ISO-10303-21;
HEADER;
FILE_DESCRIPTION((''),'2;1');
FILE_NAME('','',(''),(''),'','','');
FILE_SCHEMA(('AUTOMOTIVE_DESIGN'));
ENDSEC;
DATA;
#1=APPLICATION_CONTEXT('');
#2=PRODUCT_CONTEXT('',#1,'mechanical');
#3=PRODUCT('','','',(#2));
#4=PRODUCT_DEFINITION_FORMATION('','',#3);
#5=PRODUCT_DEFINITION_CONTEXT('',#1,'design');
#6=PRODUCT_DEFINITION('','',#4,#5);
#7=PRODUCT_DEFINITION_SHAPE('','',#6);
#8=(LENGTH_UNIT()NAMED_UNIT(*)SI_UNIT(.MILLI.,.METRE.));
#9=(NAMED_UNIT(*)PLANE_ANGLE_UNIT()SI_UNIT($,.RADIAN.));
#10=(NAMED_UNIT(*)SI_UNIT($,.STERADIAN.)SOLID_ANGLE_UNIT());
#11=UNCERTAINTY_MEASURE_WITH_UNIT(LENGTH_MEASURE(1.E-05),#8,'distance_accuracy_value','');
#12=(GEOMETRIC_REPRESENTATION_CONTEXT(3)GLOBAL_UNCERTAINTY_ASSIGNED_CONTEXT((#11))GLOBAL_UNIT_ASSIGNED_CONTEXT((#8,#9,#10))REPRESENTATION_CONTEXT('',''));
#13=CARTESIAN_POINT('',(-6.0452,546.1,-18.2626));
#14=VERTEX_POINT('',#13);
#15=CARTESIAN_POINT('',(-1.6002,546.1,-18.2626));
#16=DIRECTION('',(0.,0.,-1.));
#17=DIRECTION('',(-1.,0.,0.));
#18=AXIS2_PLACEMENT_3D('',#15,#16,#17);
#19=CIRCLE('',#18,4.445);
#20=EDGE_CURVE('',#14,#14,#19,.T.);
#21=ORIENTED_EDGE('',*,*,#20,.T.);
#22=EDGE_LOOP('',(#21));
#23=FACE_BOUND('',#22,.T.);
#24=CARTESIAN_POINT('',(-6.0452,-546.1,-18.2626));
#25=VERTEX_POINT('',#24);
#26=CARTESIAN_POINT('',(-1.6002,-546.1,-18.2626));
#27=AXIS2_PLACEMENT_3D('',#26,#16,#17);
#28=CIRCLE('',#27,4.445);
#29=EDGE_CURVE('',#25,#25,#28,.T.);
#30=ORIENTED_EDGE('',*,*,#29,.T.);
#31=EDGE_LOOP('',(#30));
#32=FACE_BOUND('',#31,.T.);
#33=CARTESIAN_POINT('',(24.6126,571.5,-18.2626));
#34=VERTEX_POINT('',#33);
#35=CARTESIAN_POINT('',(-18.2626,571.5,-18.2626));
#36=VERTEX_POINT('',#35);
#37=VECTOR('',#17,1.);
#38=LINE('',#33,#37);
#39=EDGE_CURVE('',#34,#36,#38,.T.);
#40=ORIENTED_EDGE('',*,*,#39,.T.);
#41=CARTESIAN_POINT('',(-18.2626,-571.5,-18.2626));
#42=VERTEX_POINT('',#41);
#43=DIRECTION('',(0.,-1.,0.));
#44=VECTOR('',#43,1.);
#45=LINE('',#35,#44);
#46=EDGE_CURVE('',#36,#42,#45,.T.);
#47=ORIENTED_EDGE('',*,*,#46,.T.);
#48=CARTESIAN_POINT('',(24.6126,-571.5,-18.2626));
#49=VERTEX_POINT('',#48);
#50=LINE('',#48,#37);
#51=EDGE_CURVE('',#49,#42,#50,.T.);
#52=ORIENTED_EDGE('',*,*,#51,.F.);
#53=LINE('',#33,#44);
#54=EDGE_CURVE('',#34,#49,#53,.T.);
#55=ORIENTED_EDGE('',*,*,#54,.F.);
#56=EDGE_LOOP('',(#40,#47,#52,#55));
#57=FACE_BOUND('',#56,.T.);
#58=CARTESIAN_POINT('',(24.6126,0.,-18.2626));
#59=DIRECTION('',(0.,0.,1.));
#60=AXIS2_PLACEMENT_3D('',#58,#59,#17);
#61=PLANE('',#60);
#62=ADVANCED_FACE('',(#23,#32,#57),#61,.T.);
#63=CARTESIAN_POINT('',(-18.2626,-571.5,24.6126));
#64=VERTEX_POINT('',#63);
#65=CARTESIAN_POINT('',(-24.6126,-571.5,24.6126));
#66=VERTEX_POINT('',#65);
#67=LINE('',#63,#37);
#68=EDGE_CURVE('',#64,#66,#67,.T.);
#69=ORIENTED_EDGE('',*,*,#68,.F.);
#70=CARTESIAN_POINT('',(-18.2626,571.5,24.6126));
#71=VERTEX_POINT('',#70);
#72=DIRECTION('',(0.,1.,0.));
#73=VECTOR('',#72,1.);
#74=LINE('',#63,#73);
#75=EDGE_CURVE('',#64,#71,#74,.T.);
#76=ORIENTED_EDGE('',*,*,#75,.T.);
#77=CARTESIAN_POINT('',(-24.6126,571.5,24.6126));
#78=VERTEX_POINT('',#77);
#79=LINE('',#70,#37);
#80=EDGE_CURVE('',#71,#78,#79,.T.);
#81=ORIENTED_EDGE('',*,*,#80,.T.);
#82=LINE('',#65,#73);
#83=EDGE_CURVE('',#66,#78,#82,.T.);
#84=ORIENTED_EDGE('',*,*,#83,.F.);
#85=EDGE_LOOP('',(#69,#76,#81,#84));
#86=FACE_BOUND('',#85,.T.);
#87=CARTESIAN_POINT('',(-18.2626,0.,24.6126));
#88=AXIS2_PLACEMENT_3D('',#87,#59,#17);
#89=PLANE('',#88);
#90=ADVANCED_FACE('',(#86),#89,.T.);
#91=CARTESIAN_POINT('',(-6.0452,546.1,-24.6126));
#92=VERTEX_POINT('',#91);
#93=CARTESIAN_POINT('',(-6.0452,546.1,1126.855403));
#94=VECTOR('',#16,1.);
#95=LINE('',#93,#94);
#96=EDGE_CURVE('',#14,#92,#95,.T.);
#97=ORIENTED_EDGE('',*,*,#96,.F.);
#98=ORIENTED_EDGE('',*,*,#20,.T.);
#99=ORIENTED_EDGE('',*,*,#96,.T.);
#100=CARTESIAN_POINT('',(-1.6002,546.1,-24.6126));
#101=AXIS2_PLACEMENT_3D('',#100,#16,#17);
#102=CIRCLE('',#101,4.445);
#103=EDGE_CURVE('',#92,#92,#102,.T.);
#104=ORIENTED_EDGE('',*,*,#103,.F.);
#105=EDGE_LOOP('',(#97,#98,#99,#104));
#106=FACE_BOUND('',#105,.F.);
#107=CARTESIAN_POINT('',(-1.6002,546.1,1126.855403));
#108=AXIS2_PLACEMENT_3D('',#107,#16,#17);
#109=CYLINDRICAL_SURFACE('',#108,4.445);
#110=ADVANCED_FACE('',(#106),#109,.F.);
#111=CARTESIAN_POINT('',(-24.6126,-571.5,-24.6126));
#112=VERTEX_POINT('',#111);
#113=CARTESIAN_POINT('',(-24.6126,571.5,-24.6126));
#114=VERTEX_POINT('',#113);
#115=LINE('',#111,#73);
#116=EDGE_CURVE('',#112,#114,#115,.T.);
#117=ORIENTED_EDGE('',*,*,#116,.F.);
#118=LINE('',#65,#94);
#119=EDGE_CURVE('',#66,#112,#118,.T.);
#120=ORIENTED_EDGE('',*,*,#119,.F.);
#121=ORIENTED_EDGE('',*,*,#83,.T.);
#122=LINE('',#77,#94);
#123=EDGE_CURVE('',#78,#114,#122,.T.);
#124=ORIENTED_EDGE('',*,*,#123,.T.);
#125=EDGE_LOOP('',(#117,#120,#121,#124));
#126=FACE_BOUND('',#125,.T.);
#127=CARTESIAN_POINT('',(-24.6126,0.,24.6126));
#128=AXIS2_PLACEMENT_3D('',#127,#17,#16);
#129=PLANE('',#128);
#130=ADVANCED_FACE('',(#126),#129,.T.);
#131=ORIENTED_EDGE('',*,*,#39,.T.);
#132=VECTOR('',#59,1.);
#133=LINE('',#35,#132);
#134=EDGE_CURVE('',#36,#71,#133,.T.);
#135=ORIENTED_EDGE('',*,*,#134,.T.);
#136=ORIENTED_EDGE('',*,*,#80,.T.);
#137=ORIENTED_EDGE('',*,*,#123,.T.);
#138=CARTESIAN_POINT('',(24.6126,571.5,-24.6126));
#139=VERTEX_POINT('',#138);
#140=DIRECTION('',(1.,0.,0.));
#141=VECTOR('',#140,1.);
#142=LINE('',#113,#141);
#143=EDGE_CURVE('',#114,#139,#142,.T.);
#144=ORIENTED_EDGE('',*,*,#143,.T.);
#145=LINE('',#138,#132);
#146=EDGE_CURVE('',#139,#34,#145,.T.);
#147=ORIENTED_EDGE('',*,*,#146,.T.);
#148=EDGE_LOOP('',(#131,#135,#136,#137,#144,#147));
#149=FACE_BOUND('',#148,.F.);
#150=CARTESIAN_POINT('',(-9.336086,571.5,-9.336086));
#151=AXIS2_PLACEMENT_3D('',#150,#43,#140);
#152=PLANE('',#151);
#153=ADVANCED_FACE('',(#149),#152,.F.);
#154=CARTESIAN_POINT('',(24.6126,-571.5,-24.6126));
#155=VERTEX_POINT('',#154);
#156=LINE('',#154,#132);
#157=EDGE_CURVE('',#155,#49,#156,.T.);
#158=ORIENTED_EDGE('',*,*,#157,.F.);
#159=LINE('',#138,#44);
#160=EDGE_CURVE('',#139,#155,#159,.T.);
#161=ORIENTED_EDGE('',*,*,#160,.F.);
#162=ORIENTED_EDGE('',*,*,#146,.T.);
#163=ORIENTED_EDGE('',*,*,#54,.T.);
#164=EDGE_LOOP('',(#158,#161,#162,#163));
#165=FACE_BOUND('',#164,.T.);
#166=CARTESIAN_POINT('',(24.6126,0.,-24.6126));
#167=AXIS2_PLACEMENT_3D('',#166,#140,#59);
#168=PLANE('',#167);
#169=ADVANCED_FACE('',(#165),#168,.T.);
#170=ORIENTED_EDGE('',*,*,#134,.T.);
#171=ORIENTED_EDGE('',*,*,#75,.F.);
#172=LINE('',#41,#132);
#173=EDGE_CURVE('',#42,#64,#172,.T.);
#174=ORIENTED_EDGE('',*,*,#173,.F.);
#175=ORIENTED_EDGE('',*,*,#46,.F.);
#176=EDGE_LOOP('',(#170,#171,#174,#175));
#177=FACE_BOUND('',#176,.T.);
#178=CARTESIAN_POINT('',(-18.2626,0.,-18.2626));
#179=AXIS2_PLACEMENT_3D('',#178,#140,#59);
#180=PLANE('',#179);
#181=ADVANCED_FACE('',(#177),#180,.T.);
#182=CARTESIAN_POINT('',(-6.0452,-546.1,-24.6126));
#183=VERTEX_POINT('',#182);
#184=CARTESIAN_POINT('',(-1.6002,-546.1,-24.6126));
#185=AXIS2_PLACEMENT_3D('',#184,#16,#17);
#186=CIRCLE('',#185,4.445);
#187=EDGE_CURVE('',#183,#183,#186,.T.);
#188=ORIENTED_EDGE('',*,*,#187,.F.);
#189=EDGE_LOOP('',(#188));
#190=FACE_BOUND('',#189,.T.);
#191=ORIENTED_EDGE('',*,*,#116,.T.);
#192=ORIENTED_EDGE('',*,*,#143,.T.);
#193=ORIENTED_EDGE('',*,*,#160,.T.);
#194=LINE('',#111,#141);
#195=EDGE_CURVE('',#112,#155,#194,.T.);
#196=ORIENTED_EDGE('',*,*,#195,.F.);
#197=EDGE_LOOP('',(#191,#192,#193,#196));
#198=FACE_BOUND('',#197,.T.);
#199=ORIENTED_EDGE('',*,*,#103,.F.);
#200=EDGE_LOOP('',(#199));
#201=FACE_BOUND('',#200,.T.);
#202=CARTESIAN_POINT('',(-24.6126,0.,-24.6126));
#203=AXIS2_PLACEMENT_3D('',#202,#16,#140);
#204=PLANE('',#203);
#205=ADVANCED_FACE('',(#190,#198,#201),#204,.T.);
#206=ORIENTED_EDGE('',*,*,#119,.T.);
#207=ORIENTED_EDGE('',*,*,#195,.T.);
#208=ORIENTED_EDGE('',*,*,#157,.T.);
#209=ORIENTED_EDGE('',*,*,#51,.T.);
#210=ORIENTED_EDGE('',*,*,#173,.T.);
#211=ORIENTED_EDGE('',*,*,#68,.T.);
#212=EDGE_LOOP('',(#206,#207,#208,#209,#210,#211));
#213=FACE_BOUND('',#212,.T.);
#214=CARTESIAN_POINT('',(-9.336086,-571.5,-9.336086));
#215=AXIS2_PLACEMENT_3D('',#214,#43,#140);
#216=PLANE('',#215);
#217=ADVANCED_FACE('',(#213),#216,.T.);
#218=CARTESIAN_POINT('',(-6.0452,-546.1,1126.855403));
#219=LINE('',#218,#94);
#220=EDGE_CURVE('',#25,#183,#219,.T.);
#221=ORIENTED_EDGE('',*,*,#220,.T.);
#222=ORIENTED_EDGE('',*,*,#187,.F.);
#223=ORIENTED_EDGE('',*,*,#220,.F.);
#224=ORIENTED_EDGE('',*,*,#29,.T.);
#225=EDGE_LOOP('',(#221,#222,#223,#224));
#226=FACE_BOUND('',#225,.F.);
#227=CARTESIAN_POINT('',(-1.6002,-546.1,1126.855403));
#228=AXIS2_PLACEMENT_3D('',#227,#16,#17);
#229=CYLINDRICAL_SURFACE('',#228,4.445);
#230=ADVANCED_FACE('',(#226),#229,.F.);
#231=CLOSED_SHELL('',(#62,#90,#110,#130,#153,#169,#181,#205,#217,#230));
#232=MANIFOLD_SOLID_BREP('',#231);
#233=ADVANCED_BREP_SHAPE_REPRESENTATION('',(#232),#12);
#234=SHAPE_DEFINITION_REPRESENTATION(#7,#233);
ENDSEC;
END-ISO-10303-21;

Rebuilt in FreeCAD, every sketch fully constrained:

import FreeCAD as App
import Part
import Sketcher
Q = App.Units.Quantity


def add_polygon(sketch, points):
    """Adds a closed chain of lines whose ends are joined by coincident constraints."""
    first, n = sketch.GeometryCount, len(points)
    for a, b in zip(points, points[1:] + points[:1]):
        sketch.addGeometry(Part.LineSegment(App.Vector(*a, 0), App.Vector(*b, 0)), False)
    for i in range(n):
        sketch.addConstraint(Sketcher.Constraint("Coincident", first + i, 2, first + (i + 1) % n, 1))

doc = App.newDocument("Part")
body = doc.addObject("PartDesign::Body", "Body")

# Sketch on XZ plane
sketch1 = body.newObject("Sketcher::SketchObject", "Sketch")
sketch1.AttachmentSupport = (doc.getObject("XZ_Plane"), [""])
sketch1.MapMode = "FlatFace"
add_polygon(sketch1, [(-25, -25), (25, -25), (25, -18), (-18, -18), (-18, 25), (-25, 25)])  # lines 0-5
sketch1.addConstraint(Sketcher.Constraint("Horizontal", 0))
sketch1.addConstraint(Sketcher.Constraint("Vertical", 1))
sketch1.addConstraint(Sketcher.Constraint("Horizontal", 2))
sketch1.addConstraint(Sketcher.Constraint("Vertical", 3))
sketch1.addConstraint(Sketcher.Constraint("Horizontal", 4))
sketch1.addConstraint(Sketcher.Constraint("Vertical", 5))
sketch1.addConstraint(Sketcher.Constraint("Symmetric", 0, 2, 4, 2, -1, 1))
sketch1.addConstraint(Sketcher.Constraint("Equal", 4, 1))
sketch1.addConstraint(Sketcher.Constraint("Equal", 2, 3))
sketch1.addConstraint(Sketcher.Constraint("DistanceX", 4, 2, 4, 1, Q("0.25 in")))
sketch1.addConstraint(Sketcher.Constraint("DistanceX", 0, 1, 0, 2, Q("1.938 in")))
pad1 = body.newObject("PartDesign::Pad", "Pad")
pad1.Profile = sketch1
pad1.Length = Q("45 in")
pad1.Midplane = True

# Sketch on XY plane
sketch2 = body.newObject("Sketcher::SketchObject", "Sketch001")
sketch2.AttachmentSupport = (doc.getObject("XY_Plane"), [""])
sketch2.MapMode = "FlatFace"
sketch2.AttachmentOffset = App.Placement(App.Vector(0, 0, -0.719 * 25.4), App.Rotation())
sketch2.addGeometry(Part.Circle(App.Vector(-1.6, -546.1, 0), App.Vector(0, 0, 1), 4.4), False)
sketch2.addGeometry(Part.Circle(App.Vector(-1.6, 546.1, 0), App.Vector(0, 0, 1), 4.4), False)
sketch2.addConstraint(Sketcher.Constraint("Equal", 0, 1))
sketch2.addConstraint(Sketcher.Constraint("Symmetric", 0, 3, 1, 3, -1))
sketch2.addConstraint(Sketcher.Constraint("Diameter", 0, Q("0.35 in")))
sketch2.addConstraint(Sketcher.Constraint("DistanceY", 0, 3, 1, 3, Q("43 in")))
sketch2.addConstraint(Sketcher.Constraint("DistanceX", 0, 3, -1, 1, Q("0.063 in")))
doc.recompute()
hole = body.newObject("PartDesign::Hole", "Hole")
hole.Profile = sketch2
hole.ThreadType = "None"
hole.Diameter = Q("0.35 in")
hole.DepthType = "ThroughAll"

doc.recompute()
